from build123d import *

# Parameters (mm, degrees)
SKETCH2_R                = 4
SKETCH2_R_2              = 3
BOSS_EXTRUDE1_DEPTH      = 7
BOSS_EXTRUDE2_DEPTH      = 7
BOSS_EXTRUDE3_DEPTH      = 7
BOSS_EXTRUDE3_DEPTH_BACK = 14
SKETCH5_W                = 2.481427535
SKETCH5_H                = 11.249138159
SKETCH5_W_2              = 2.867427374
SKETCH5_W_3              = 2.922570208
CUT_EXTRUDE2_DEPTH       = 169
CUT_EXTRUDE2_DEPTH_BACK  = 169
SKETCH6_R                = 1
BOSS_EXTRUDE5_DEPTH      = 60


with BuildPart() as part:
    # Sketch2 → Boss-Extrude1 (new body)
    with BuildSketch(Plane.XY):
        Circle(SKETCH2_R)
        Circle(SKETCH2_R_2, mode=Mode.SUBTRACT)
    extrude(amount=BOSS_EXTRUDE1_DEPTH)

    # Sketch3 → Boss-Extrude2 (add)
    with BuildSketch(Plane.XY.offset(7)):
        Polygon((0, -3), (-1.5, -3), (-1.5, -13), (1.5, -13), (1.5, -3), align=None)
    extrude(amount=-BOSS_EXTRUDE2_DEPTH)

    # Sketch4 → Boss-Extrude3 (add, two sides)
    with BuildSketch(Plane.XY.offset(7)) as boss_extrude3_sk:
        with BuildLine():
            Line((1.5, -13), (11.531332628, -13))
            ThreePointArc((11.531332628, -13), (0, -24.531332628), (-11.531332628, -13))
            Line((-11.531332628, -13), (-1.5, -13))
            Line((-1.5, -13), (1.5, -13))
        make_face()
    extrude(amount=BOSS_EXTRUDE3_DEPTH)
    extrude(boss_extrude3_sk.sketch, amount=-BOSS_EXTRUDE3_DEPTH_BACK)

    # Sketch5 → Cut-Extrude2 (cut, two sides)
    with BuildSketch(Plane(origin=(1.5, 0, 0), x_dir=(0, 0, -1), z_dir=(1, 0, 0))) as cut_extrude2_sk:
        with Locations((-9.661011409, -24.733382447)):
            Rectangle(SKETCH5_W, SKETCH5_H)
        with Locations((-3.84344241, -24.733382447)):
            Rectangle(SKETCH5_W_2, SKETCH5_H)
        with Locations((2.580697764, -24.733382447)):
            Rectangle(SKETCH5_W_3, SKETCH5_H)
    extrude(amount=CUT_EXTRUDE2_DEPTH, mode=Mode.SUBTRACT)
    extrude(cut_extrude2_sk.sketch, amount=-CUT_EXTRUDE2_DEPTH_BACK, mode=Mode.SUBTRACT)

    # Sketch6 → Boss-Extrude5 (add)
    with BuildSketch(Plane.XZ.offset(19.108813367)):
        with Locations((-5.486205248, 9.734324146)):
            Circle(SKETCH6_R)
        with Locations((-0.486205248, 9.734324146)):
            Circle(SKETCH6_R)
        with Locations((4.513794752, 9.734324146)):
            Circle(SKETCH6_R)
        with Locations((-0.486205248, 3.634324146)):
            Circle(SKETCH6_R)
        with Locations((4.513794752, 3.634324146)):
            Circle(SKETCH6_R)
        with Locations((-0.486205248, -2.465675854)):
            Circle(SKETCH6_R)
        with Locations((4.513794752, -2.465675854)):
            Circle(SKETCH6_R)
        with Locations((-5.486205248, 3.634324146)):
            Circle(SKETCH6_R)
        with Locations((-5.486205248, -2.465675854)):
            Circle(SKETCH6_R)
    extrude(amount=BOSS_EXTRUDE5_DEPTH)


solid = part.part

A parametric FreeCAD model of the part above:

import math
import FreeCAD as App
import Part
import Sketcher
from FreeCAD import Vector
Q = App.Units.Quantity

doc = App.newDocument("Part")
params = doc.addObject("Spreadsheet::Sheet", "Params")
for row, (alias, value) in enumerate([
    ("sketch1_diameter", "8 mm"),
    ("sketch1_diameter2", "6 mm"),
    ("pad1_length", "7 mm"),
    ("sketch2_width", "3 mm"),
    ("sketch2_height", "10 mm"),
    ("pad2_length", "7 mm"),
    ("pad3_length", "7 mm"),
    ("pad3_length2", "14 mm"),
    ("sketch5_diameter", "2 mm"),
    ("pad4_length", "60 mm"),
], start=1):
    params.set(f"A{row}", alias)
    params.set(f"B{row}", "=" + value)
    params.setAlias(f"B{row}", alias)

body = doc.addObject("PartDesign::Body", "Body")

# Sketch on XY plane
sketch1 = body.newObject("Sketcher::SketchObject", "Sketch")
sketch1.AttachmentSupport = (doc.getObject("XY_Plane"), [""])
sketch1.MapMode = "FlatFace"
sketch1.addGeometry([
    Part.Circle(Vector(0, 0, 0), Vector(0, 0, 1), 4),
    Part.Circle(Vector(0, 0, 0), Vector(0, 0, 1), 3),
], False)
sketch1.addConstraint([
    Sketcher.Constraint("Coincident", 0, 3, -1, 1),
    Sketcher.Constraint("Coincident", 1, 3, -1, 1),
    Sketcher.Constraint("Diameter", 0, Q("8 mm")),
    Sketcher.Constraint("Diameter", 1, Q("6 mm")),
])
sketch1.setExpression("Constraints[2]", "Params.sketch1_diameter")
sketch1.setExpression("Constraints[3]", "Params.sketch1_diameter2")
pad1 = body.newObject("PartDesign::Pad", "Pad")
pad1.Profile = sketch1
pad1.setExpression("Length", "Params.pad1_length")

# Sketch on XY plane
sketch2 = body.newObject("Sketcher::SketchObject", "Sketch001")
sketch2.AttachmentSupport = (doc.getObject("XY_Plane"), [""])
sketch2.MapMode = "FlatFace"
sketch2.AttachmentOffset = App.Placement(Vector(0, 0, 7), App.Rotation())
sketch2.addGeometry([
    Part.LineSegment(Vector(-1.5, -3, 0), Vector(-1.5, -13, 0)),
    Part.LineSegment(Vector(-1.5, -13, 0), Vector(1.5, -13, 0)),
    Part.LineSegment(Vector(1.5, -13, 0), Vector(1.5, -3, 0)),
    Part.LineSegment(Vector(1.5, -3, 0), Vector(-1.5, -3, 0)),
], False)
sketch2.addConstraint([
    Sketcher.Constraint("Coincident", 0, 2, 1, 1),
    Sketcher.Constraint("Coincident", 1, 2, 2, 1),
    Sketcher.Constraint("Coincident", 2, 2, 3, 1),
    Sketcher.Constraint("Coincident", 3, 2, 0, 1),
    Sketcher.Constraint("Vertical", 0),
    Sketcher.Constraint("Horizontal", 1),
    Sketcher.Constraint("Vertical", 2),
    Sketcher.Constraint("Horizontal", 3),
    Sketcher.Constraint("DistanceX", 1, 1, 1, 2, Q("3 mm")),
    Sketcher.Constraint("DistanceY", 0, 2, 0, 1, Q("10 mm")),
    Sketcher.Constraint("DistanceY", 0, 2, -1, 1, Q("13 mm")),
    Sketcher.Constraint("DistanceX", 0, 2, -1, 1, Q("1.5 mm")),
])
sketch2.setExpression("Constraints[8]", "Params.sketch2_width")
sketch2.setExpression("Constraints[9]", "Params.sketch2_height")
pad2 = body.newObject("PartDesign::Pad", "Pad001")
pad2.Profile = sketch2
pad2.setExpression("Length", "Params.pad2_length")
pad2.Reversed = True

# Sketch on XY plane
sketch3 = body.newObject("Sketcher::SketchObject", "Sketch002")
sketch3.AttachmentSupport = (doc.getObject("XY_Plane"), [""])
sketch3.MapMode = "FlatFace"
sketch3.AttachmentOffset = App.Placement(Vector(0, 0, 7), App.Rotation())
sketch3.addGeometry([
    Part.ArcOfCircle(Part.Circle(Vector(0, -13, 0), Vector(0, 0, 1), 11.531333), math.radians(180), math.radians(360)),
    Part.LineSegment(Vector(11.531333, -13, 0), Vector(-11.531333, -13, 0)),
], False)
sketch3.addConstraint([
    Sketcher.Constraint("Coincident", 0, 1, 1, 2),
    Sketcher.Constraint("Coincident", 1, 1, 0, 2),
    Sketcher.Constraint("Horizontal", 1),
    Sketcher.Constraint("PointOnObject", 0, 3, -2),
    Sketcher.Constraint("DistanceY", 0, 3, -1, 1, Q("13 mm")),
    Sketcher.Constraint("DistanceY", 0, 1, -1, 1, Q("13 mm")),
    Sketcher.Constraint("Radius", 0, Q("11.531333 mm")),
])
pad3 = body.newObject("PartDesign::Pad", "Pad002")
pad3.Profile = sketch3
pad3.Type = "TwoLengths"
pad3.setExpression("Length", "Params.pad3_length")
pad3.setExpression("Length2", "Params.pad3_length2")

# Sketch on YZ plane
sketch4 = body.newObject("Sketcher::SketchObject", "Sketch003")
sketch4.AttachmentSupport = (doc.getObject("YZ_Plane"), [""])
sketch4.MapMode = "FlatFace"
sketch4.AttachmentOffset = App.Placement(Vector(0, 0, 1.5), App.Rotation())
sketch4.addGeometry([
    Part.LineSegment(Vector(-19.108813, 10.901725, 0), Vector(-30.357952, 10.901725, 0)),  # 0
    Part.LineSegment(Vector(-30.357952, 10.901725, 0), Vector(-30.357952, 8.420298, 0)),  # 1
    Part.LineSegment(Vector(-30.357952, 8.420298, 0), Vector(-19.108813, 8.420298, 0)),  # 2
    Part.LineSegment(Vector(-19.108813, 8.420298, 0), Vector(-19.108813, 10.901725, 0)),  # 3
    Part.LineSegment(Vector(-19.108813, 5.277156, 0), Vector(-30.357952, 5.277156, 0)),  # 4
    Part.LineSegment(Vector(-30.357952, 5.277156, 0), Vector(-30.357952, 2.409729, 0)),  # 5
    Part.LineSegment(Vector(-30.357952, 2.409729, 0), Vector(-19.108813, 2.409729, 0)),  # 6
    Part.LineSegment(Vector(-19.108813, 2.409729, 0), Vector(-19.108813, 5.277156, 0)),  # 7
    Part.LineSegment(Vector(-19.108813, -1.119413, 0), Vector(-30.357952, -1.119413, 0)),  # 8
    Part.LineSegment(Vector(-30.357952, -1.119413, 0), Vector(-30.357952, -4.041983, 0)),  # 9
    Part.LineSegment(Vector(-30.357952, -4.041983, 0), Vector(-19.108813, -4.041983, 0)),  # 10
    Part.LineSegment(Vector(-19.108813, -4.041983, 0), Vector(-19.108813, -1.119413, 0)),  # 11
], False)
sketch4.addConstraint([
    Sketcher.Constraint("Coincident", 0, 2, 1, 1),
    Sketcher.Constraint("Coincident", 1, 2, 2, 1),
    Sketcher.Constraint("Coincident", 2, 2, 3, 1),
    Sketcher.Constraint("Coincident", 3, 2, 0, 1),
    Sketcher.Constraint("Coincident", 4, 2, 5, 1),
    Sketcher.Constraint("Coincident", 5, 2, 6, 1),
    Sketcher.Constraint("Coincident", 6, 2, 7, 1),
    Sketcher.Constraint("Coincident", 7, 2, 4, 1),
    Sketcher.Constraint("Coincident", 8, 2, 9, 1),
    Sketcher.Constraint("Coincident", 9, 2, 10, 1),
    Sketcher.Constraint("Coincident", 10, 2, 11, 1),
    Sketcher.Constraint("Coincident", 11, 2, 8, 1),
    Sketcher.Constraint("Horizontal", 0),
    Sketcher.Constraint("Vertical", 1),
    Sketcher.Constraint("Horizontal", 2),
    Sketcher.Constraint("Vertical", 3),
    Sketcher.Constraint("Horizontal", 4),
    Sketcher.Constraint("Vertical", 5),
    Sketcher.Constraint("Horizontal", 6),
    Sketcher.Constraint("Vertical", 7),
    Sketcher.Constraint("Horizontal", 8),
    Sketcher.Constraint("Vertical", 9),
    Sketcher.Constraint("Horizontal", 10),
    Sketcher.Constraint("Vertical", 11),
    Sketcher.Constraint("Vertical", 1, 2, 4, 2),
    Sketcher.Constraint("Vertical", 3, 2, 6, 2),
    Sketcher.Constraint("Vertical", 5, 2, 8, 2),
    Sketcher.Constraint("Vertical", 7, 2, 10, 2),
    Sketcher.Constraint("DistanceX", 0, 2, 0, 1, Q("11.249138 mm")),
    Sketcher.Constraint("DistanceY", 9, 2, 9, 1, Q("2.92257 mm")),
    Sketcher.Constraint("DistanceY", 1, 2, 1, 1, Q("2.481428 mm")),
    Sketcher.Constraint("DistanceY", 5, 2, 5, 1, Q("2.867427 mm")),
    Sketcher.Constraint("DistanceX", 0, 2, -1, 1, Q("30.357952 mm")),
    Sketcher.Constraint("DistanceY", -1, 1, 5, 2, Q("2.409729 mm")),
    Sketcher.Constraint("DistanceY", 4, 2, 1, 2, Q("3.143142 mm")),
    Sketcher.Constraint("DistanceY", 8, 2, 5, 2, Q("3.529141 mm")),
])
pocket1 = body.newObject("PartDesign::Pocket", "Pocket")
pocket1.Profile = sketch4
pocket1.Type = "ThroughAll"
pocket1.Midplane = True

# Sketch on XZ plane
sketch5 = body.newObject("Sketcher::SketchObject", "Sketch004")
sketch5.AttachmentSupport = (doc.getObject("XZ_Plane"), [""])
sketch5.MapMode = "FlatFace"
sketch5.AttachmentOffset = App.Placement(Vector(0, 0, 19.108813), App.Rotation())
sketch5.addGeometry([
    Part.Circle(Vector(-5.486205, 9.734324, 0), Vector(0, 0, 1), 1),  # 0
    Part.Circle(Vector(-0.486205, 9.734324, 0), Vector(0, 0, 1), 1),  # 1
    Part.Circle(Vector(4.513795, 9.734324, 0), Vector(0, 0, 1), 1),  # 2
    Part.Circle(Vector(-0.486205, 3.634324, 0), Vector(0, 0, 1), 1),  # 3
    Part.Circle(Vector(4.513795, 3.634324, 0), Vector(0, 0, 1), 1),  # 4
    Part.Circle(Vector(-0.486205, -2.465676, 0), Vector(0, 0, 1), 1),  # 5
    Part.Circle(Vector(4.513795, -2.465676, 0), Vector(0, 0, 1), 1),  # 6
    Part.Circle(Vector(-5.486205, 3.634324, 0), Vector(0, 0, 1), 1),  # 7
    Part.Circle(Vector(-5.486205, -2.465676, 0), Vector(0, 0, 1), 1),  # 8
], False)
sketch5.addConstraint([
    Sketcher.Constraint("Equal", 0, 1),
    Sketcher.Constraint("Equal", 1, 2),
    Sketcher.Constraint("Equal", 2, 3),
    Sketcher.Constraint("Equal", 3, 4),
    Sketcher.Constraint("Equal", 4, 5),
    Sketcher.Constraint("Equal", 5, 6),
    Sketcher.Constraint("Equal", 6, 7),
    Sketcher.Constraint("Equal", 7, 8),
    Sketcher.Constraint("Horizontal", 0, 3, 1, 3),
    Sketcher.Constraint("Horizontal", 1, 3, 2, 3),
    Sketcher.Constraint("Horizontal", 3, 3, 4, 3),
    Sketcher.Constraint("Horizontal", 5, 3, 6, 3),
    Sketcher.Constraint("Horizontal", 4, 3, 7, 3),
    Sketcher.Constraint("Horizontal", 6, 3, 8, 3),
    Sketcher.Constraint("Vertical", 1, 3, 3, 3),
    Sketcher.Constraint("Vertical", 2, 3, 4, 3),
    Sketcher.Constraint("Vertical", 3, 3, 5, 3),
    Sketcher.Constraint("Vertical", 4, 3, 6, 3),
    Sketcher.Constraint("Vertical", 0, 3, 7, 3),
    Sketcher.Constraint("Vertical", 7, 3, 8, 3),
    Sketcher.Constraint("Diameter", 0, Q("2 mm")),
    Sketcher.Constraint("DistanceX", 0, 3, 1, 3, Q("5 mm")),
    Sketcher.Constraint("DistanceX", 1, 3, 2, 3, Q("5 mm")),
    Sketcher.Constraint("DistanceY", 3, 3, 1, 3, Q("6.1 mm")),
    Sketcher.Constraint("DistanceY", 5, 3, 3, 3, Q("6.1 mm")),
    Sketcher.Constraint("DistanceX", 0, 3, -1, 1, Q("5.486205 mm")),
    Sketcher.Constraint("DistanceY", -1, 1, 0, 3, Q("9.734324 mm")),
])
sketch5.setExpression("Constraints[20]", "Params.sketch5_diameter")
pad4 = body.newObject("PartDesign::Pad", "Pad003")
pad4.Profile = sketch5
pad4.setExpression("Length", "Params.pad4_length")

doc.recompute()
